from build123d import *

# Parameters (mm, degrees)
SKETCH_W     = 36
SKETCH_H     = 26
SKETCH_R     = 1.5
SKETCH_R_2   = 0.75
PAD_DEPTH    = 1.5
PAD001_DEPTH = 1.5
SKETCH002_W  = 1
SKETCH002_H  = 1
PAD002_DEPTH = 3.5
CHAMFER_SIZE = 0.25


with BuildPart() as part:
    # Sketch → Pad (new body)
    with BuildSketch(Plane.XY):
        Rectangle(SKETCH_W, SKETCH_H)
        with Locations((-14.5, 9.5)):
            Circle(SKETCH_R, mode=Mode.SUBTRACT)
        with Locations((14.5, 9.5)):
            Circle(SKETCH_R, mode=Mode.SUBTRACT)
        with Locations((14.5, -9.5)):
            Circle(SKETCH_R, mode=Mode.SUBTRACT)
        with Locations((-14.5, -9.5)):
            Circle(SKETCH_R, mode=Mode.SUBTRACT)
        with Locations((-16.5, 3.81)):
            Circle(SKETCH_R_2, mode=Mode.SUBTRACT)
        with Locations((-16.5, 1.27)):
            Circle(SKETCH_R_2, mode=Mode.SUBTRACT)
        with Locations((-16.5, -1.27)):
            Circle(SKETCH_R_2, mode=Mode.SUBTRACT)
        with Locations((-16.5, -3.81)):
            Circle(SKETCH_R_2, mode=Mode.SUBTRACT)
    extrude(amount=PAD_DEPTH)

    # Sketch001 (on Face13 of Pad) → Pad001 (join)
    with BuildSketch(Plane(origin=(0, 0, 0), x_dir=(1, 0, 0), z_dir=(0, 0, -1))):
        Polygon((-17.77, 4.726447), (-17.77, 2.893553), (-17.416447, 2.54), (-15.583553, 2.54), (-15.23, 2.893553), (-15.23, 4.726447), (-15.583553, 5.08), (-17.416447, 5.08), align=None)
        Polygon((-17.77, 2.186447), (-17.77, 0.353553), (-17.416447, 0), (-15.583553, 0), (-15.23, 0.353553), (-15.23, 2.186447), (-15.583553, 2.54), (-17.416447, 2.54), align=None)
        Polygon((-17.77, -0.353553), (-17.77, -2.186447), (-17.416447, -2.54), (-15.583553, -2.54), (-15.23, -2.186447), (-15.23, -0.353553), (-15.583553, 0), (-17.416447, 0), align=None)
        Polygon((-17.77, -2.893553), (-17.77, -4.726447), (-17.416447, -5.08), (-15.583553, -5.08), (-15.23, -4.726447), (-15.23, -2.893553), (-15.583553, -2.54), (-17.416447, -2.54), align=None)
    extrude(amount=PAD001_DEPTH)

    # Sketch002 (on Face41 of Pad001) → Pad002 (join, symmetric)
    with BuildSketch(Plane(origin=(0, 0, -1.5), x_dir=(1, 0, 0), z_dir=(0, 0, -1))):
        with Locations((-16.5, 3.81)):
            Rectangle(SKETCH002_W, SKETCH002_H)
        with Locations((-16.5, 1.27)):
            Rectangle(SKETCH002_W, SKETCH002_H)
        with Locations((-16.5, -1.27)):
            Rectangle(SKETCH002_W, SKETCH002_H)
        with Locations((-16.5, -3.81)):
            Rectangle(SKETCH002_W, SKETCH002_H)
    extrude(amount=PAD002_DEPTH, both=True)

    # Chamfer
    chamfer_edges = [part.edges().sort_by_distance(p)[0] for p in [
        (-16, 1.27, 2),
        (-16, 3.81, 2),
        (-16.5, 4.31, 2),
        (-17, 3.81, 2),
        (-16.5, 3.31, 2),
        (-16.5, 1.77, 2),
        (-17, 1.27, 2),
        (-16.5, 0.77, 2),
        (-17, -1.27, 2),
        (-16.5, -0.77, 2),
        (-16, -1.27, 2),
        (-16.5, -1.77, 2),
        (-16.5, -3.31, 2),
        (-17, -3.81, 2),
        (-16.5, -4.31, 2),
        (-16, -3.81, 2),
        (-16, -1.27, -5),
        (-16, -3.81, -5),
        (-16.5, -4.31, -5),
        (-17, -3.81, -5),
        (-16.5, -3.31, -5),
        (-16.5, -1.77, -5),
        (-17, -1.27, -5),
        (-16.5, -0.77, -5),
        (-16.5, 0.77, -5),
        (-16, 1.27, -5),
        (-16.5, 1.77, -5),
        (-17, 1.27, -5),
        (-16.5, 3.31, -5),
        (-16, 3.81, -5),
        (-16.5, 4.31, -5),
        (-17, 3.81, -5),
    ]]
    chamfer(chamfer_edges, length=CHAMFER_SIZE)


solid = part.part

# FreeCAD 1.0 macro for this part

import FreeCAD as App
import Part
import Sketcher
Q = App.Units.Quantity


def edges_at(feature, points):
    """Names of the edges that pass closest to the given points."""
    edges = feature.Shape.Edges
    near = lambda p: min(range(len(edges)), key=lambda i: edges[i].distToShape(Part.Vertex(*p))[0])
    return sorted({f"Edge{near(p) + 1}" for p in points})


def add_polygon(sketch, points):
    """Adds a closed chain of lines whose ends are joined by coincident constraints."""
    first, n = sketch.GeometryCount, len(points)
    for a, b in zip(points, points[1:] + points[:1]):
        sketch.addGeometry(Part.LineSegment(App.Vector(*a, 0), App.Vector(*b, 0)), False)
    for i in range(n):
        sketch.addConstraint(Sketcher.Constraint("Coincident", first + i, 2, first + (i + 1) % n, 1))

doc = App.newDocument("Part")
body = doc.addObject("PartDesign::Body", "Body")

sketch1 = body.newObject("Sketcher::SketchObject", "Sketch")
sketch1.AttachmentSupport = (doc.getObject("XY_Plane"), [""])
sketch1.MapMode = "FlatFace"
add_polygon(sketch1, [(-18, 13), (-18, -13), (18, -13), (18, 13)])
sketch1.addGeometry(Part.Circle(App.Vector(-14.5, -9.5, 0), App.Vector(0, 0, 1), 1.5), False)
sketch1.addGeometry(Part.Circle(App.Vector(-16.5, -3.81, 0), App.Vector(0, 0, 1), 0.75), False)
sketch1.addGeometry(Part.Circle(App.Vector(-16.5, -1.27, 0), App.Vector(0, 0, 1), 0.75), False)
sketch1.addGeometry(Part.Circle(App.Vector(14.5, -9.5, 0), App.Vector(0, 0, 1), 1.5), False)
sketch1.addGeometry(Part.Circle(App.Vector(-16.5, 1.27, 0), App.Vector(0, 0, 1), 0.75), False)
sketch1.addGeometry(Part.Circle(App.Vector(-16.5, 3.81, 0), App.Vector(0, 0, 1), 0.75), False)
sketch1.addGeometry(Part.Circle(App.Vector(-14.5, 9.5, 0), App.Vector(0, 0, 1), 1.5), False)
sketch1.addGeometry(Part.Circle(App.Vector(14.5, 9.5, 0), App.Vector(0, 0, 1), 1.5), False)
sketch1.addConstraint([
    Sketcher.Constraint("Vertical", 0),
    Sketcher.Constraint("Horizontal", 1),
    Sketcher.Constraint("Vertical", 2),
    Sketcher.Constraint("Horizontal", 3),
    Sketcher.Constraint("Equal", 5, 6),
    Sketcher.Constraint("Equal", 4, 7),
    Sketcher.Constraint("Equal", 6, 8),
    Sketcher.Constraint("Equal", 8, 9),
    Sketcher.Constraint("Equal", 7, 10),
    Sketcher.Constraint("Equal", 10, 11),
    Sketcher.Constraint("Symmetric", 7, 3, 10, 3, -1, 1),
    Sketcher.Constraint("Symmetric", 4, 3, 11, 3, -1, 1),
    Sketcher.Constraint("Symmetric", 0, 2, 2, 2, -1, 1),
    Sketcher.Constraint("Symmetric", 4, 3, 7, 3, -2),
    Sketcher.Constraint("Symmetric", 6, 3, 8, 3, -1),
    Sketcher.Constraint("Symmetric", 5, 3, 9, 3, -1),
    Sketcher.Constraint("Vertical", 5, 3, 6, 3),
    Sketcher.Constraint("Diameter", 4, Q("3 mm")),
    Sketcher.Constraint("Diameter", 5, Q("1.5 mm")),
    Sketcher.Constraint("DistanceX", 1, 1, 1, 2, Q("36 mm")),
    Sketcher.Constraint("DistanceY", 0, 2, 0, 1, Q("26 mm")),
    Sketcher.Constraint("DistanceX", 5, 3, 4, 3, Q("2 mm")),
    Sketcher.Constraint("DistanceX", 4, 3, 7, 3, Q("29 mm")),
    Sketcher.Constraint("DistanceY", 4, 3, 10, 3, Q("19 mm")),
    Sketcher.Constraint("DistanceY", 5, 3, -1, 1, Q("3.81 mm")),
    Sketcher.Constraint("DistanceY", 6, 3, -1, 1, Q("1.27 mm")),
])
pad1 = body.newObject("PartDesign::Pad", "Pad")
pad1.Profile = sketch1
pad1.Length = 1.5

sketch2 = body.newObject("Sketcher::SketchObject", "Sketch001")
sketch2.AttachmentSupport = (doc.getObject("XY_Plane"), [""])
sketch2.MapMode = "FlatFace"
add_polygon(sketch2, [(-17.77, -4.726447), (-17.77, -2.893553), (-17.416447, -2.54), (-17.77, -2.186447), (-17.77, -0.353553), (-17.416447, 0), (-17.77, 0.353553), (-17.77, 2.186447), (-17.416447, 2.54), (-17.77, 2.893553), (-17.77, 4.726447), (-17.416447, 5.08), (-15.583553, 5.08), (-15.23, 4.726447), (-15.23, 2.893553), (-15.583553, 2.54), (-15.23, 2.186447), (-15.23, 0.353553), (-15.583553, 0), (-15.23, -0.353553), (-15.23, -2.186447), (-15.583553, -2.54), (-15.23, -2.893553), (-15.23, -4.726447), (-15.583553, -5.08), (-17.416447, -5.08)])
sketch2.addConstraint([
    Sketcher.Constraint("Vertical", 0),
    Sketcher.Constraint("Vertical", 3),
    Sketcher.Constraint("Vertical", 6),
    Sketcher.Constraint("Vertical", 9),
    Sketcher.Constraint("Horizontal", 11),
    Sketcher.Constraint("Vertical", 13),
    Sketcher.Constraint("Vertical", 16),
    Sketcher.Constraint("Vertical", 19),
    Sketcher.Constraint("Vertical", 22),
    Sketcher.Constraint("Horizontal", 24),
    Sketcher.Constraint("Symmetric", 3, 2, 5, 2, -1),
    Sketcher.Constraint("Symmetric", 1, 2, 7, 2, -1),
    Sketcher.Constraint("Symmetric", 0, 2, 8, 2, -1),
    Sketcher.Constraint("Symmetric", 16, 2, 18, 2, -1),
    Sketcher.Constraint("Symmetric", 14, 2, 20, 2, -1),
    Sketcher.Constraint("Symmetric", 13, 2, 21, 2, -1),
    Sketcher.Constraint("Symmetric", 11, 2, 23, 2, -1),
    Sketcher.Constraint("PointOnObject", 4, 2, -1),
    Sketcher.Constraint("PointOnObject", 17, 2, -1),
    Sketcher.Constraint("Perpendicular", 1, 2),
    Sketcher.Constraint("Perpendicular", 2, 4),
    Sketcher.Constraint("Perpendicular", 4, 5),
    Sketcher.Constraint("Perpendicular", 5, 7),
    Sketcher.Constraint("Perpendicular", 8, 10),
    Sketcher.Constraint("Perpendicular", 10, 12),
    Sketcher.Constraint("Perpendicular", 12, 14),
    Sketcher.Constraint("Perpendicular", 14, 15),
    Sketcher.Constraint("Perpendicular", 15, 17),
    Sketcher.Constraint("Perpendicular", 18, 20),
    Sketcher.Constraint("Perpendicular", 21, 23),
    Sketcher.Constraint("Perpendicular", 23, 25),
    Sketcher.Constraint("Horizontal", 9, 2, 12, 2),
    Sketcher.Constraint("Horizontal", 8, 2, 13, 2),
    Sketcher.Constraint("Horizontal", 7, 2, 14, 2),
    Sketcher.Constraint("Horizontal", 6, 2, 15, 2),
    Sketcher.Constraint("Horizontal", 5, 2, 16, 2),
    Sketcher.Constraint("Horizontal", 22, 2, 25, 2),
    Sketcher.Constraint("Vertical", 0, 2, 2, 2),
    Sketcher.Constraint("Vertical", 1, 2, 4, 2),
    Sketcher.Constraint("Vertical", 7, 2, 10, 2),
    Sketcher.Constraint("Equal", 24, 0),
    Sketcher.Constraint("Equal", 0, 3),
    Sketcher.Constraint("Distance", 1, Q("0.499999 mm")),
    Sketcher.Constraint("DistanceX", 0, 2, -1, 1, Q("17.77 mm")),
    Sketcher.Constraint("DistanceY", 1, 2, -1, 1, Q("2.54 mm")),
])
pad2 = body.newObject("PartDesign::Pad", "Pad001")
pad2.Profile = sketch2
pad2.Length = 1.5
pad2.Reversed = True

sketch3 = body.newObject("Sketcher::SketchObject", "Sketch002")
sketch3.AttachmentSupport = (doc.getObject("XY_Plane"), [""])
sketch3.MapMode = "FlatFace"
sketch3.AttachmentOffset = App.Placement(App.Vector(0, 0, -1.5), App.Rotation())
add_polygon(sketch3, [(-17, -4.31), (-17, -3.31), (-16, -3.31), (-16, -4.31)])
add_polygon(sketch3, [(-17, -1.77), (-17, -0.77), (-16, -0.77), (-16, -1.77)])
add_polygon(sketch3, [(-17, 0.77), (-17, 1.77), (-16, 1.77), (-16, 0.77)])
add_polygon(sketch3, [(-17, 3.31), (-17, 4.31), (-16, 4.31), (-16, 3.31)])
sketch3.addConstraint([
    Sketcher.Constraint("Vertical", 0),
    Sketcher.Constraint("Horizontal", 1),
    Sketcher.Constraint("Vertical", 2),
    Sketcher.Constraint("Horizontal", 3),
    Sketcher.Constraint("Vertical", 4),
    Sketcher.Constraint("Horizontal", 5),
    Sketcher.Constraint("Vertical", 6),
    Sketcher.Constraint("Horizontal", 7),
    Sketcher.Constraint("Vertical", 8),
    Sketcher.Constraint("Horizontal", 9),
    Sketcher.Constraint("Vertical", 10),
    Sketcher.Constraint("Horizontal", 11),
    Sketcher.Constraint("Vertical", 12),
    Sketcher.Constraint("Horizontal", 13),
    Sketcher.Constraint("Vertical", 14),
    Sketcher.Constraint("Horizontal", 15),
    Sketcher.Constraint("Symmetric", 7, 2, 8, 2, -1),
    Sketcher.Constraint("Symmetric", 5, 2, 10, 2, -1),
    Sketcher.Constraint("Symmetric", 3, 2, 12, 2, -1),
    Sketcher.Constraint("Symmetric", 1, 2, 14, 2, -1),
    Sketcher.Constraint("Vertical", 3, 2, 4, 2),
    Sketcher.Constraint("Vertical", 2, 2, 5, 2),
    Sketcher.Constraint("Equal", 15, 0),
    Sketcher.Constraint("Equal", 2, 4),
    Sketcher.Constraint("DistanceX", 1, 1, 1, 2, Q("1 mm")),
    Sketcher.Constraint("DistanceX", 0, 2, -1, 1, Q("17 mm")),
    Sketcher.Constraint("DistanceY", 0, 2, -1, 1, Q("3.31 mm")),
    Sketcher.Constraint("DistanceY", 4, 2, -1, 1, Q("0.77 mm")),
])
pad3 = body.newObject("PartDesign::Pad", "Pad002")
pad3.Profile = sketch3
pad3.Length = 7
pad3.Midplane = True
doc.recompute()

chamfer = body.newObject("PartDesign::Chamfer", "Chamfer")
chamfer.Base = (pad3, edges_at(pad3, [
    (-16, 1.27, 2),
    (-16, 3.81, 2),
    (-16.5, 4.31, 2),
    (-17, 3.81, 2),
    (-16.5, 3.31, 2),
    (-16.5, 1.77, 2),
    (-17, 1.27, 2),
    (-16.5, 0.77, 2),
    (-17, -1.27, 2),
    (-16.5, -0.77, 2),
    (-16, -1.27, 2),
    (-16.5, -1.77, 2),
    (-16.5, -3.31, 2),
    (-17, -3.81, 2),
    (-16.5, -4.31, 2),
    (-16, -3.81, 2),
    (-16, -1.27, -5),
    (-16, -3.81, -5),
    (-16.5, -4.31, -5),
    (-17, -3.81, -5),
    (-16.5, -3.31, -5),
    (-16.5, -1.77, -5),
    (-17, -1.27, -5),
    (-16.5, -0.77, -5),
    (-16.5, 0.77, -5),
    (-16, 1.27, -5),
    (-16.5, 1.77, -5),
    (-17, 1.27, -5),
    (-16.5, 3.31, -5),
    (-16, 3.81, -5),
    (-16.5, 4.31, -5),
    (-17, 3.81, -5),
]))
chamfer.Size = 0.25

doc.recompute()
